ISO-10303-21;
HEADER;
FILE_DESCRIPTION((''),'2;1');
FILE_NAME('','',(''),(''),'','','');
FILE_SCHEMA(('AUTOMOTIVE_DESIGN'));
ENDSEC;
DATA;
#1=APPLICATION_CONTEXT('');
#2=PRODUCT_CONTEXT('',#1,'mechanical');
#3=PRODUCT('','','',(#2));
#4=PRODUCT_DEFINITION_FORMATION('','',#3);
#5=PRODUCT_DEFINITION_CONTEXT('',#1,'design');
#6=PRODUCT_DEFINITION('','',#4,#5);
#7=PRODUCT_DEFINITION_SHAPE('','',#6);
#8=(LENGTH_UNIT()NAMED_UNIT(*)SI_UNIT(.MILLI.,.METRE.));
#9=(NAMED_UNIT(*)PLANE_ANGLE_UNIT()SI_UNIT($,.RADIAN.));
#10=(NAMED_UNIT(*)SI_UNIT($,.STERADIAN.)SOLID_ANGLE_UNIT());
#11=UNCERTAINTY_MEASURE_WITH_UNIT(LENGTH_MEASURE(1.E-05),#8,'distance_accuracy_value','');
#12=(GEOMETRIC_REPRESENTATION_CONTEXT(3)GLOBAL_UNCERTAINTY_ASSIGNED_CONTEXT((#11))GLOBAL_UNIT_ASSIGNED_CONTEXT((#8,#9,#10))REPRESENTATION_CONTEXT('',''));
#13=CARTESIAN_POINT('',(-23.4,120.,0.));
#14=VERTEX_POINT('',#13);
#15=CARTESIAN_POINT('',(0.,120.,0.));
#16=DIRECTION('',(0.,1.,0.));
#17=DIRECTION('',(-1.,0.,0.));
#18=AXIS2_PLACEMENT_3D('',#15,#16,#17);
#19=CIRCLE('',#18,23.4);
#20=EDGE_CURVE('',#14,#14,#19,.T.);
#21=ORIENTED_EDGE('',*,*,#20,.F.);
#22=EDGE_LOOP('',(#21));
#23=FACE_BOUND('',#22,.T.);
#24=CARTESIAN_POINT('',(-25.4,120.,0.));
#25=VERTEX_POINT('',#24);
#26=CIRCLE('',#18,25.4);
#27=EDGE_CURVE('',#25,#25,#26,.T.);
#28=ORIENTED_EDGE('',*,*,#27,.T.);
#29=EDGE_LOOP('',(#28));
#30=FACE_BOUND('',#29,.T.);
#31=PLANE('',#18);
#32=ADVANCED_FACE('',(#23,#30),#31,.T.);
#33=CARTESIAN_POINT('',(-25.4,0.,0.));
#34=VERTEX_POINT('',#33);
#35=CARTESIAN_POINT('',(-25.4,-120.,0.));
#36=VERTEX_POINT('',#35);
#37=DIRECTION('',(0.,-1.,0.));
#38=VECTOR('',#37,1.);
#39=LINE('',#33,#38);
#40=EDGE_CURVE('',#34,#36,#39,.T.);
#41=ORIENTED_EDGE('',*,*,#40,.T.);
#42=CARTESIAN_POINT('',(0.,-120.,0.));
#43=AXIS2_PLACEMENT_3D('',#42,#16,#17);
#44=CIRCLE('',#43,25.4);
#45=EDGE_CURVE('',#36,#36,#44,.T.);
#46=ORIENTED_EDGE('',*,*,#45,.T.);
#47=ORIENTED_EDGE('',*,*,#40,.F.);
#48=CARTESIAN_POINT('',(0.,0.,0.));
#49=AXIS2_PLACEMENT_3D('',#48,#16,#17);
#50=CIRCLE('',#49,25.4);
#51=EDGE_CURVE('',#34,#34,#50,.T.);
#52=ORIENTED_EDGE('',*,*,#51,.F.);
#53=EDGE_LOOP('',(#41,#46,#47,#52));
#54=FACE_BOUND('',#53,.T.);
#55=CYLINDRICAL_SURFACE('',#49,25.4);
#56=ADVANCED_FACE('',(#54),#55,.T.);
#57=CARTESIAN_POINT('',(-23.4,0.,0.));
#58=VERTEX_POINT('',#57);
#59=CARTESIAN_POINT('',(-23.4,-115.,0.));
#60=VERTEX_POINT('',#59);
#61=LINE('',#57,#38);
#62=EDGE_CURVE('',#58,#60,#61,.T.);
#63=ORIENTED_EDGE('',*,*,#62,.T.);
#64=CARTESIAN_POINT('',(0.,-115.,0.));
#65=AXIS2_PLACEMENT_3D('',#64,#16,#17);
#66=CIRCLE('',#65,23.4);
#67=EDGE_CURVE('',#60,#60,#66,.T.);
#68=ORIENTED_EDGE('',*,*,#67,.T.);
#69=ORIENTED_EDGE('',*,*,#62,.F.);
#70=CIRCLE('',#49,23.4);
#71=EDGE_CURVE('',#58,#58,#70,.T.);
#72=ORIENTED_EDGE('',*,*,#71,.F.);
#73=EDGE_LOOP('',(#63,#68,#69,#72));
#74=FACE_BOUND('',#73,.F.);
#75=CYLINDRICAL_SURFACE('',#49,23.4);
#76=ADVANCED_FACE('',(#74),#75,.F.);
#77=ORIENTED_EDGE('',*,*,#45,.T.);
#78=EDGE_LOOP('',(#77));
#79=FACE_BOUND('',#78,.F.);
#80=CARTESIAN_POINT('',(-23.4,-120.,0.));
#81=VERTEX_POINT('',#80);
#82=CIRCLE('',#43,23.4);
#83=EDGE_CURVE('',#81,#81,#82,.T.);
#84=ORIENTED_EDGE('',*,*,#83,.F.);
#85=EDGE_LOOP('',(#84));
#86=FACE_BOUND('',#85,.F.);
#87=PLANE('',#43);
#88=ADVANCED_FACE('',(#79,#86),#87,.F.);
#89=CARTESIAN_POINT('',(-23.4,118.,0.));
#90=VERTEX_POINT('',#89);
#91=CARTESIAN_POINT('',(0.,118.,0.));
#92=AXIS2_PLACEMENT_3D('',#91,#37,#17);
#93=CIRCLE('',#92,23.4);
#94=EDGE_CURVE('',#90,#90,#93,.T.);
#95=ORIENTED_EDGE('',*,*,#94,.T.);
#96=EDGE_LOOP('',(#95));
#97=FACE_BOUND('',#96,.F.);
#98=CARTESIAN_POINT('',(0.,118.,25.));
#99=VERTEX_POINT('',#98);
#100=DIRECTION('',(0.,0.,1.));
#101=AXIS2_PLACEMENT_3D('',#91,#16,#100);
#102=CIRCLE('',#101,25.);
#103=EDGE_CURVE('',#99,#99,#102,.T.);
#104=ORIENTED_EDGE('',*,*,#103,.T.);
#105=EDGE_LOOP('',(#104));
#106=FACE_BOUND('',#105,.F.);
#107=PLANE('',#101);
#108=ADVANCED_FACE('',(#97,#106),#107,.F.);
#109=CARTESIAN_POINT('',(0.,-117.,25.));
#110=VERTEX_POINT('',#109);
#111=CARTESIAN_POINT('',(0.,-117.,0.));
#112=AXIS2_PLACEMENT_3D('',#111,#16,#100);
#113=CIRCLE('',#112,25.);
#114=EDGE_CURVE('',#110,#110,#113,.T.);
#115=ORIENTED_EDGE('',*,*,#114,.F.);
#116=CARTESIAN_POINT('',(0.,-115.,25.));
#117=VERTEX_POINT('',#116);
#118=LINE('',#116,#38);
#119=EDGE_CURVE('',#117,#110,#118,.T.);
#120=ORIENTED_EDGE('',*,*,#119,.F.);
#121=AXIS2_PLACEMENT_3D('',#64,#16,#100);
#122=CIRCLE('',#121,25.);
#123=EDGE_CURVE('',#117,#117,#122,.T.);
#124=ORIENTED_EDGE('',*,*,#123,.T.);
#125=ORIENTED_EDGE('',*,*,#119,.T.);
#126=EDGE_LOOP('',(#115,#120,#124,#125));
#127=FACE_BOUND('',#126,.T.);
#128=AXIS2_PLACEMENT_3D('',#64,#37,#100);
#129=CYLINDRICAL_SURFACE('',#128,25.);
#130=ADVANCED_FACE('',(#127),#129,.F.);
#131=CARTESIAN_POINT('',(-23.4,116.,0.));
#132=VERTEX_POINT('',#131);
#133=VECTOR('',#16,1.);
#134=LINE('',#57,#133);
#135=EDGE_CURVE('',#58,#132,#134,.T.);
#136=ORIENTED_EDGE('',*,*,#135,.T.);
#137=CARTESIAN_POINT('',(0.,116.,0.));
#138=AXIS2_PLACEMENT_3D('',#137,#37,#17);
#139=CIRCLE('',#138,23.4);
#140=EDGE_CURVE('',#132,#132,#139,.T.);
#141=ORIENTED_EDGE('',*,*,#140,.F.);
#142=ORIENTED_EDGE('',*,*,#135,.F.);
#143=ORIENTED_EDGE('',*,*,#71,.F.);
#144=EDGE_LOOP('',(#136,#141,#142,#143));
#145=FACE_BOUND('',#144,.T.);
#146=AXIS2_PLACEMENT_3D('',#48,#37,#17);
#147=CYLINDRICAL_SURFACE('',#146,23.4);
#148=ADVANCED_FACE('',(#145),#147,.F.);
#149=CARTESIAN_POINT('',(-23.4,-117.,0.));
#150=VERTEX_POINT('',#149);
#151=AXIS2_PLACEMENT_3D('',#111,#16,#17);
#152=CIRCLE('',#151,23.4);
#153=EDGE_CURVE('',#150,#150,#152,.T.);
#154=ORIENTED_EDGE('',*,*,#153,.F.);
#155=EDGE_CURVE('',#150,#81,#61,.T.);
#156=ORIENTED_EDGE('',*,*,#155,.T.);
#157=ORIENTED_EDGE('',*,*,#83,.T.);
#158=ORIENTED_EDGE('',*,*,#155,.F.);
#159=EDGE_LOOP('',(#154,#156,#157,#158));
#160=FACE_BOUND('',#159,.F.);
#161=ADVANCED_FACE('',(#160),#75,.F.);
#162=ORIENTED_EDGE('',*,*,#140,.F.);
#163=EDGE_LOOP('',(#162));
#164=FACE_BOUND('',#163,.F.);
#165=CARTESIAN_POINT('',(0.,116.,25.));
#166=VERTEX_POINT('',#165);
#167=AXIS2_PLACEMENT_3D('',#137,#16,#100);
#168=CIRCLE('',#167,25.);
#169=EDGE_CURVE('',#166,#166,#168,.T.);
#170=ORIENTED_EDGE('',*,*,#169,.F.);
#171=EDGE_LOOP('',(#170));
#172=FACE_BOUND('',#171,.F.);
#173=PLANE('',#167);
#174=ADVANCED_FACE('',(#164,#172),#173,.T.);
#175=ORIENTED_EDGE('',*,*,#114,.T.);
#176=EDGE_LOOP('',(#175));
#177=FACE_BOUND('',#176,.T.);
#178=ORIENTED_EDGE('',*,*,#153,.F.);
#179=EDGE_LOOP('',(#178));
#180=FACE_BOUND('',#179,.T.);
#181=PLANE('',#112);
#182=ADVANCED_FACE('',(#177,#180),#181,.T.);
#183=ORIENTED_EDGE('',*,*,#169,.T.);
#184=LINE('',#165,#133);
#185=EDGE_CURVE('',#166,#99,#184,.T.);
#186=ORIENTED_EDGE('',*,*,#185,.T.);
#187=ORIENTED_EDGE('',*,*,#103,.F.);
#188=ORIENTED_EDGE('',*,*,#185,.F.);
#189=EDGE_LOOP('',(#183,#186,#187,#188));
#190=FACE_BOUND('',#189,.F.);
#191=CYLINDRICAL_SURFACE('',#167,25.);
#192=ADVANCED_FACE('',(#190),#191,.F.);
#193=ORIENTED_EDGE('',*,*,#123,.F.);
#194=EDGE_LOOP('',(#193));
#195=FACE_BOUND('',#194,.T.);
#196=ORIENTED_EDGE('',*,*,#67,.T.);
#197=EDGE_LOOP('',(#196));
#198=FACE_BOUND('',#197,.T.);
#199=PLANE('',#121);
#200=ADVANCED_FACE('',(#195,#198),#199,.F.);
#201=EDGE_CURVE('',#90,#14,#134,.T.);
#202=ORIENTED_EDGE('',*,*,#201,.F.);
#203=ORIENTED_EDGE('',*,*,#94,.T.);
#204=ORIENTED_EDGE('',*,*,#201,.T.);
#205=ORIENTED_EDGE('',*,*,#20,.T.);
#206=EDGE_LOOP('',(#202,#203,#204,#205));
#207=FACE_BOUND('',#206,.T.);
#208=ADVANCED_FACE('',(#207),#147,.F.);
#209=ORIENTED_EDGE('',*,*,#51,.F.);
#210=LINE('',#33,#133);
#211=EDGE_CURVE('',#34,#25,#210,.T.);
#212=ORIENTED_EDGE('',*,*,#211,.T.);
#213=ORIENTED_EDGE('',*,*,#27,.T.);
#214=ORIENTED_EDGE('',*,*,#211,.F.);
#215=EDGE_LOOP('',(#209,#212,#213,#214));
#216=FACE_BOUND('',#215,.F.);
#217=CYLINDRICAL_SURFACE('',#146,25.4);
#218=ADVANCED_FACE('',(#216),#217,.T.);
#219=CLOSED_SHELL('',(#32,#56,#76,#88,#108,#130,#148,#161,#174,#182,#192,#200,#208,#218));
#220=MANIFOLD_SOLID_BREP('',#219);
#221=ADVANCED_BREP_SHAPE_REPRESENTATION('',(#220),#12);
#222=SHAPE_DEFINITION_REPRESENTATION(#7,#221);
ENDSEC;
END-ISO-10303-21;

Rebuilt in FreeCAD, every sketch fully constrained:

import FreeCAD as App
import Part
import Sketcher
from FreeCAD import Vector
Q = App.Units.Quantity

doc = App.newDocument("Part")
body = doc.addObject("PartDesign::Body", "Body")

# Sketch on XZ plane
sketch1 = body.newObject("Sketcher::SketchObject", "Sketch")
sketch1.AttachmentSupport = (doc.getObject("XZ_Plane"), [""])
sketch1.MapMode = "FlatFace"
sketch1.addGeometry([
    Part.Circle(Vector(0, 0, 0), Vector(0, 0, 1), 25.4),
    Part.Circle(Vector(0, 0, 0), Vector(0, 0, 1), 23.4),
], False)
sketch1.addConstraint([
    Sketcher.Constraint("Coincident", 0, 3, -1, 1),
    Sketcher.Constraint("Coincident", 1, 3, -1, 1),
    Sketcher.Constraint("Diameter", 0, Q("50.8 mm")),
    Sketcher.Constraint("Diameter", 1, Q("46.8 mm")),
])
pad1 = body.newObject("PartDesign::Pad", "Pad")
pad1.Profile = sketch1
pad1.Length = 240
pad1.Midplane = True

# Sketch on YZ plane
sketch2 = body.newObject("Sketcher::SketchObject", "Sketch001")
sketch2.AttachmentSupport = (doc.getObject("YZ_Plane"), [""])
sketch2.MapMode = "FlatFace"
sketch2.addGeometry([
    Part.LineSegment(Vector(116, 23.4, 0), Vector(118, 23.4, 0)),  # 0
    Part.LineSegment(Vector(118, 23.4, 0), Vector(118, 25, 0)),  # 1
    Part.LineSegment(Vector(118, 25, 0), Vector(116, 25, 0)),  # 2
    Part.LineSegment(Vector(116, 25, 0), Vector(116, 23.4, 0)),  # 3
    Part.LineSegment(Vector(-117, 23.4, 0), Vector(-115, 23.4, 0)),  # 4
    Part.LineSegment(Vector(-115, 23.4, 0), Vector(-115, 25, 0)),  # 5
    Part.LineSegment(Vector(-115, 25, 0), Vector(-117, 25, 0)),  # 6
    Part.LineSegment(Vector(-117, 25, 0), Vector(-117, 23.4, 0)),  # 7
], False)
sketch2.addConstraint([
    Sketcher.Constraint("Coincident", 0, 2, 1, 1),
    Sketcher.Constraint("Coincident", 1, 2, 2, 1),
    Sketcher.Constraint("Coincident", 2, 2, 3, 1),
    Sketcher.Constraint("Coincident", 3, 2, 0, 1),
    Sketcher.Constraint("Coincident", 4, 2, 5, 1),
    Sketcher.Constraint("Coincident", 5, 2, 6, 1),
    Sketcher.Constraint("Coincident", 6, 2, 7, 1),
    Sketcher.Constraint("Coincident", 7, 2, 4, 1),
    Sketcher.Constraint("Horizontal", 0),
    Sketcher.Constraint("Vertical", 1),
    Sketcher.Constraint("Horizontal", 2),
    Sketcher.Constraint("Vertical", 3),
    Sketcher.Constraint("Horizontal", 4),
    Sketcher.Constraint("Vertical", 5),
    Sketcher.Constraint("Horizontal", 6),
    Sketcher.Constraint("Vertical", 7),
    Sketcher.Constraint("Horizontal", 3, 2, 4, 2),
    Sketcher.Constraint("Horizontal", 2, 2, 5, 2),
    Sketcher.Constraint("Equal", 2, 4),
    Sketcher.Constraint("DistanceX", 0, 1, 0, 2, Q("2 mm")),
    Sketcher.Constraint("DistanceY", 1, 1, 1, 2, Q("1.6 mm")),
    Sketcher.Constraint("DistanceX", -1, 1, 0, 2, Q("118 mm")),
    Sketcher.Constraint("DistanceY", -1, 1, 1, 2, Q("25 mm")),
    Sketcher.Constraint("DistanceX", 4, 2, -1, 1, Q("115 mm")),
])
groove = body.newObject("PartDesign::Groove", "Groove")
groove.Profile = sketch2
groove.ReferenceAxis = (sketch2, ["H_Axis"])
groove.Angle = 360

doc.recompute()
